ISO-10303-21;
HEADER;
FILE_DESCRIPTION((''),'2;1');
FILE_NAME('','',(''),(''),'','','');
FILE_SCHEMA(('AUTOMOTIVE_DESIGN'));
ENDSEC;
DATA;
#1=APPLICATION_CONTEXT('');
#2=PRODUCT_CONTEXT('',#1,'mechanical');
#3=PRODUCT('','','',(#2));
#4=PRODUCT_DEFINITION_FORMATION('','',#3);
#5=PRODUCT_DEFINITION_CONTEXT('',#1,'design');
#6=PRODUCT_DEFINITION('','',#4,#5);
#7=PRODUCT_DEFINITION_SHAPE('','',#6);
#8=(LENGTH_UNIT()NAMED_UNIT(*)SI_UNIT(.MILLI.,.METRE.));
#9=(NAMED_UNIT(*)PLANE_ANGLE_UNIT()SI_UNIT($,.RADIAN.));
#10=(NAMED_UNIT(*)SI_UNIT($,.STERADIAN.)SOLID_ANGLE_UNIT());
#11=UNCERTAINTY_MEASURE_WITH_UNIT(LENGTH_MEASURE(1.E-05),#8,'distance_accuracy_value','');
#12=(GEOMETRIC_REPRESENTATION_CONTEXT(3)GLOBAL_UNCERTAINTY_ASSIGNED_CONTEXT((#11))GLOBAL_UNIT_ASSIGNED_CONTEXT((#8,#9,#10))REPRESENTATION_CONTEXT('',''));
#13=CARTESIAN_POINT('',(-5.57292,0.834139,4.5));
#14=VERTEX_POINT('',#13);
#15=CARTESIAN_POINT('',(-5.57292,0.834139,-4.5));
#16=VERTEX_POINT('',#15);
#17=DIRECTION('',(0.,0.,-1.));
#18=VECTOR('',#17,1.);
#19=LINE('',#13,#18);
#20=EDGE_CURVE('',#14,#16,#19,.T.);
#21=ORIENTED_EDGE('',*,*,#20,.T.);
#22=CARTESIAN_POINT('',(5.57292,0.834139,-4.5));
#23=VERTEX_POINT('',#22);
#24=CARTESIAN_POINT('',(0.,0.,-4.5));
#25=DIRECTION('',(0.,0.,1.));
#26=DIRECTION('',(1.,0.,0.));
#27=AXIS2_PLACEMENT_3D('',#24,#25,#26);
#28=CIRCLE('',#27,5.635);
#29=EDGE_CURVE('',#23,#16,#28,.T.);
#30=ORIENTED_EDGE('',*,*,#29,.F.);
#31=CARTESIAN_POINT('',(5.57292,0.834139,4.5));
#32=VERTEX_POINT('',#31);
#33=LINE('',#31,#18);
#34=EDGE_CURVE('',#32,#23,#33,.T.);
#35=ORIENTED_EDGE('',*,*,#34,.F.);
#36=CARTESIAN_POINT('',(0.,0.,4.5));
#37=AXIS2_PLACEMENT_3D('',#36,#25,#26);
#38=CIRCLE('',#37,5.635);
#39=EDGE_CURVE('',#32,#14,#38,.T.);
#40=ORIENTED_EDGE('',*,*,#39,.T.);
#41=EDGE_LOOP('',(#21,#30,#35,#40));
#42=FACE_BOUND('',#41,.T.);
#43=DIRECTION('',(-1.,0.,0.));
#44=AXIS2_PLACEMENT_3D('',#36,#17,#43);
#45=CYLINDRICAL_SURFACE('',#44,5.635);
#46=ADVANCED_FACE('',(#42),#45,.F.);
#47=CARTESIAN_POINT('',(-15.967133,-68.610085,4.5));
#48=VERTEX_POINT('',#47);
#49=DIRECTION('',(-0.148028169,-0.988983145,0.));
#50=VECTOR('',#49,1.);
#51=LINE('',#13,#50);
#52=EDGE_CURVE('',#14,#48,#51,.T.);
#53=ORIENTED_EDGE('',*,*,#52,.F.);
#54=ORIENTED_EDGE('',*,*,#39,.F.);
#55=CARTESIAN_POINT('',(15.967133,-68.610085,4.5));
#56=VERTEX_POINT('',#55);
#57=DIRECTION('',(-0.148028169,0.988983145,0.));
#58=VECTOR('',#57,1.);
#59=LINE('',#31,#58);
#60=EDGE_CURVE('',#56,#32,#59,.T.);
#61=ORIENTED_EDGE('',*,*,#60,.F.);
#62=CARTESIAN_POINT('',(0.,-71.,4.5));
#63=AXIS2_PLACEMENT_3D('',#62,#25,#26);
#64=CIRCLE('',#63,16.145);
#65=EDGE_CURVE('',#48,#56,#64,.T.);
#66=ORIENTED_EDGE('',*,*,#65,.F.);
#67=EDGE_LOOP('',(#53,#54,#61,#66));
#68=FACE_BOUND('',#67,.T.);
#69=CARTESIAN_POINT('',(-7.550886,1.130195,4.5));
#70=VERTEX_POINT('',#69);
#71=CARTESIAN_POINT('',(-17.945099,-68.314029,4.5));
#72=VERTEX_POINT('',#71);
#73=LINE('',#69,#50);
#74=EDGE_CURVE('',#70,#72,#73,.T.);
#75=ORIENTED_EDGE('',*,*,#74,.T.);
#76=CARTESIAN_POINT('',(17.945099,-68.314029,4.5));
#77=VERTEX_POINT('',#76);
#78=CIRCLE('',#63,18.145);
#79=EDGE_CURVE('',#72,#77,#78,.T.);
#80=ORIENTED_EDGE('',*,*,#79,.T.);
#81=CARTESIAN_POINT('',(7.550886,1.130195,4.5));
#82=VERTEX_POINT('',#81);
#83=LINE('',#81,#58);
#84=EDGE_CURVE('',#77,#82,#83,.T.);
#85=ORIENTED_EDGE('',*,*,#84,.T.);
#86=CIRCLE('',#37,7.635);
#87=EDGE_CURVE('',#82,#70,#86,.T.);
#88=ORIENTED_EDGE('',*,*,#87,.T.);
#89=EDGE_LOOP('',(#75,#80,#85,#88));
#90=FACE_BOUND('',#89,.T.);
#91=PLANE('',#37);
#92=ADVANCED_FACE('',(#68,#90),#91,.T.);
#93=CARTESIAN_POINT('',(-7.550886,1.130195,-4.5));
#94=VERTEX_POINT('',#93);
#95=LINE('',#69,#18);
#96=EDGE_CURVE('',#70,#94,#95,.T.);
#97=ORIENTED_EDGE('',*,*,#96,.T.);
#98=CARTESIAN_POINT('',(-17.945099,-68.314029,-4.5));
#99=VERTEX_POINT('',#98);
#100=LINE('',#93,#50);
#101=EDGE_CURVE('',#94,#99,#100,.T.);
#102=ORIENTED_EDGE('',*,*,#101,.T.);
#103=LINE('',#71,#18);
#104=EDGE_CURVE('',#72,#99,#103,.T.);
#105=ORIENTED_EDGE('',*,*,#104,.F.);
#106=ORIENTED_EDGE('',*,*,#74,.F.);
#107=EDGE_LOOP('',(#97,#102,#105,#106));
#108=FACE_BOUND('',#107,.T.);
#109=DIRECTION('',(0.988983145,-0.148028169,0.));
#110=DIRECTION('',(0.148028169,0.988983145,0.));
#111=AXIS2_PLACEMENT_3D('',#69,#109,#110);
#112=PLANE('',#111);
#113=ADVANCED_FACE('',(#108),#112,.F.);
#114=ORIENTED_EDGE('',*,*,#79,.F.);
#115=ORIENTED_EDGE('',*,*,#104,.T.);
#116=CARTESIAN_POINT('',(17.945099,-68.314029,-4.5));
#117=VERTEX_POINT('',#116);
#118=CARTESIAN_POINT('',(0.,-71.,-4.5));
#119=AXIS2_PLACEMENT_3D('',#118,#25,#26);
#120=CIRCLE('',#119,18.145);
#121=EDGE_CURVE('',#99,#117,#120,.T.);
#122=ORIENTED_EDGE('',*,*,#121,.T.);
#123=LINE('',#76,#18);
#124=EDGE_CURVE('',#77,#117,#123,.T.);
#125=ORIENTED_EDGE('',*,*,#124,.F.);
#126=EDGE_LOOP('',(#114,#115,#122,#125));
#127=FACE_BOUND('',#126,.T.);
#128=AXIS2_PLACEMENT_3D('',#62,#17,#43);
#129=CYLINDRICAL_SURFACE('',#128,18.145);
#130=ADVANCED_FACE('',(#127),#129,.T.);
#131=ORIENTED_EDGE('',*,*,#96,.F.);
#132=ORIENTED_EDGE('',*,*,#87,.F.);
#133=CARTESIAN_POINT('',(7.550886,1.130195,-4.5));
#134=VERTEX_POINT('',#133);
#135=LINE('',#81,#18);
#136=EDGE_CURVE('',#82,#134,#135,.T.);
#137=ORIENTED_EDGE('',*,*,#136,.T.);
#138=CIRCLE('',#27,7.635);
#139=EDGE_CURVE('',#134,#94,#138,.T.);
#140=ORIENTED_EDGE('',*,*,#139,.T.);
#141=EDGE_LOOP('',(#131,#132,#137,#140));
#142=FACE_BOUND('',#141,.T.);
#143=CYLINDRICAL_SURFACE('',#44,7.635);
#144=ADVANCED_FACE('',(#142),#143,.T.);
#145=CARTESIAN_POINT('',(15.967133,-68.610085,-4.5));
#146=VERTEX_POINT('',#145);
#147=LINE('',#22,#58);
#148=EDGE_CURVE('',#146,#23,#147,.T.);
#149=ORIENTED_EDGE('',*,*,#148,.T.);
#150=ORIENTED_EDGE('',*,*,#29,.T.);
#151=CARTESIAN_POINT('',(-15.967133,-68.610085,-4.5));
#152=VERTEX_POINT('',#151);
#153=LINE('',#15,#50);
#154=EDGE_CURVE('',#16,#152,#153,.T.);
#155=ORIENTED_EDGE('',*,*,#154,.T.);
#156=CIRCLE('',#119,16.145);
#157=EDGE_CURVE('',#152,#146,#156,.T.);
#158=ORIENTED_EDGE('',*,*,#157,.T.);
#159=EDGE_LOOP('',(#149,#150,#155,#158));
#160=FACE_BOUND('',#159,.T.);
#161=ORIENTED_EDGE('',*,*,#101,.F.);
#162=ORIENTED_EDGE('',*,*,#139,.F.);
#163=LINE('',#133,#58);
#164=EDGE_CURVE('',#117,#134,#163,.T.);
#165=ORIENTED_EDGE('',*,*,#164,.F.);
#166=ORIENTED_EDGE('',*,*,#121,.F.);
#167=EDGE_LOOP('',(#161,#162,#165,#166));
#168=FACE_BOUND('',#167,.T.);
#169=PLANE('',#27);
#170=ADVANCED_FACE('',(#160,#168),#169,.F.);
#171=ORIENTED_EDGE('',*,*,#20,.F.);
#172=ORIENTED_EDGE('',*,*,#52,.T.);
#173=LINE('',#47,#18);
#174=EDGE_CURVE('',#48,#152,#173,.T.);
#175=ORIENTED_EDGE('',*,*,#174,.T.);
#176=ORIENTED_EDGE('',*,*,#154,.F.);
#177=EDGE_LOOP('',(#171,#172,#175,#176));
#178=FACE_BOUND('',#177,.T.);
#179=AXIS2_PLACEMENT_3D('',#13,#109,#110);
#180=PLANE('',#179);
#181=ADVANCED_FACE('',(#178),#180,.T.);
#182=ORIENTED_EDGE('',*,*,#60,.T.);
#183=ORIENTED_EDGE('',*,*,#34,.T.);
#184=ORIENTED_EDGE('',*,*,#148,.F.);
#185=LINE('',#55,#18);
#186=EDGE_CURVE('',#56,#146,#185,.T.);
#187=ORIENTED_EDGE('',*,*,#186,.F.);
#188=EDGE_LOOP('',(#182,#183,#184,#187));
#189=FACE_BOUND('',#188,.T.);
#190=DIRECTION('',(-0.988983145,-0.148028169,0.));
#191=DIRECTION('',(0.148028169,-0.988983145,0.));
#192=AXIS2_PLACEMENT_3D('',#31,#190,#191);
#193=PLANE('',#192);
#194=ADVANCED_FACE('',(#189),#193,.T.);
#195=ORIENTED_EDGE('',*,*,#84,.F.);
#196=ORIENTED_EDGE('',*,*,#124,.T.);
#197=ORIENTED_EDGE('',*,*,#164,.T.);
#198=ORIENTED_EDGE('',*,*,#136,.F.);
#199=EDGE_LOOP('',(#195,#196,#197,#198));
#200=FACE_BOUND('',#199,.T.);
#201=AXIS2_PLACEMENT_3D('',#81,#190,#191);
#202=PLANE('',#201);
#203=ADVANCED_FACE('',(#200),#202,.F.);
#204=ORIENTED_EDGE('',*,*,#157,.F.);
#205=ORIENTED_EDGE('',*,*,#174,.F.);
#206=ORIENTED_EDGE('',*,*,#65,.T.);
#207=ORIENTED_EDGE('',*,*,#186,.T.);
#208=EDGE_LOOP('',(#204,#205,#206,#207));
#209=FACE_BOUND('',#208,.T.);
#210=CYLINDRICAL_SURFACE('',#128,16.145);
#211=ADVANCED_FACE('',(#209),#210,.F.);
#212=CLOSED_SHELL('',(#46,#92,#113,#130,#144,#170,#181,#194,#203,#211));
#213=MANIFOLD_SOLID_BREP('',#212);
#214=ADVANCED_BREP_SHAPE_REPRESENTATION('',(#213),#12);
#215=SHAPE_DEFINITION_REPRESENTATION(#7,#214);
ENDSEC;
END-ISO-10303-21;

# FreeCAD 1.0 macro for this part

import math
import FreeCAD as App
import Part
import Sketcher

V = App.Vector

doc = App.newDocument("Part")
params = doc.addObject("Spreadsheet::Sheet", "Params")
for row, (alias, value) in enumerate([
    ("pad1_length", "9 mm"),
], start=1):
    params.set(f"A{row}", alias)
    params.set(f"B{row}", "=" + value)
    params.setAlias(f"B{row}", alias)

body = doc.addObject("PartDesign::Body", "Body")

sketch1 = body.newObject("Sketcher::SketchObject", "Sketch")
sketch1.AttachmentSupport = (doc.getObject("XY_Plane"), [""])
sketch1.MapMode = "FlatFace"
sketch1.addGeometry(Part.LineSegment(V(18, -68, 0), V(8, 1, 0)), False)
sketch1.addGeometry(Part.ArcOfCircle(Part.Circle(V(0, 0, 0), V(0, 0, 1), 8), math.radians(9), math.radians(171)), False)
sketch1.addGeometry(Part.LineSegment(V(-8, 1, 0), V(-18, -68, 0)), False)
sketch1.addGeometry(Part.ArcOfCircle(Part.Circle(V(0, -71, 0), V(0, 0, 1), 18), math.radians(171), math.radians(369)), False)
sketch1.addGeometry(Part.LineSegment(V(6, 1, 0), V(16, -69, 0)), False)
sketch1.addGeometry(Part.ArcOfCircle(Part.Circle(V(0, -71, 0), V(0, 0, 1), 16), math.radians(171), math.radians(369)), False)
sketch1.addGeometry(Part.LineSegment(V(-16, -69, 0), V(-6, 1, 0)), False)
sketch1.addGeometry(Part.ArcOfCircle(Part.Circle(V(0, 0, 0), V(0, 0, 1), 6), math.radians(9), math.radians(171)), False)
sketch1.addConstraint(Sketcher.Constraint("Tangent", 0, 2, 1, 1))
sketch1.addConstraint(Sketcher.Constraint("Tangent", 1, 2, 2, 1))
sketch1.addConstraint(Sketcher.Constraint("Tangent", 2, 2, 3, 1))
sketch1.addConstraint(Sketcher.Constraint("Tangent", 3, 2, 0, 1))
sketch1.addConstraint(Sketcher.Constraint("Tangent", 4, 2, 5, 2))
sketch1.addConstraint(Sketcher.Constraint("Tangent", 5, 1, 6, 1))
sketch1.addConstraint(Sketcher.Constraint("Tangent", 6, 2, 7, 2))
sketch1.addConstraint(Sketcher.Constraint("Tangent", 7, 1, 4, 1))
sketch1.addConstraint(Sketcher.Constraint("Coincident", 1, 3, -1, 1))
sketch1.addConstraint(Sketcher.Constraint("Coincident", 7, 3, -1, 1))
sketch1.addConstraint(Sketcher.Constraint("Coincident", 5, 3, 3, 3))
sketch1.addConstraint(Sketcher.Constraint("PointOnObject", 3, 3, -2))
sketch1.addConstraint(Sketcher.Constraint("Parallel", 0, 4))
sketch1.addConstraint(Sketcher.Constraint("DistanceY", 3, 3, -1, 1, 71.0))
sketch1.addConstraint(Sketcher.Constraint("Radius", 1, 7.635))
sketch1.addConstraint(Sketcher.Constraint("Radius", 3, 18.145))
sketch1.addConstraint(Sketcher.Constraint("Radius", 5, 16.145))
pad1 = body.newObject("PartDesign::Pad", "Pad")
pad1.Profile = sketch1
pad1.setExpression("Length", "Params.pad1_length")
pad1.Midplane = True

doc.recompute()
